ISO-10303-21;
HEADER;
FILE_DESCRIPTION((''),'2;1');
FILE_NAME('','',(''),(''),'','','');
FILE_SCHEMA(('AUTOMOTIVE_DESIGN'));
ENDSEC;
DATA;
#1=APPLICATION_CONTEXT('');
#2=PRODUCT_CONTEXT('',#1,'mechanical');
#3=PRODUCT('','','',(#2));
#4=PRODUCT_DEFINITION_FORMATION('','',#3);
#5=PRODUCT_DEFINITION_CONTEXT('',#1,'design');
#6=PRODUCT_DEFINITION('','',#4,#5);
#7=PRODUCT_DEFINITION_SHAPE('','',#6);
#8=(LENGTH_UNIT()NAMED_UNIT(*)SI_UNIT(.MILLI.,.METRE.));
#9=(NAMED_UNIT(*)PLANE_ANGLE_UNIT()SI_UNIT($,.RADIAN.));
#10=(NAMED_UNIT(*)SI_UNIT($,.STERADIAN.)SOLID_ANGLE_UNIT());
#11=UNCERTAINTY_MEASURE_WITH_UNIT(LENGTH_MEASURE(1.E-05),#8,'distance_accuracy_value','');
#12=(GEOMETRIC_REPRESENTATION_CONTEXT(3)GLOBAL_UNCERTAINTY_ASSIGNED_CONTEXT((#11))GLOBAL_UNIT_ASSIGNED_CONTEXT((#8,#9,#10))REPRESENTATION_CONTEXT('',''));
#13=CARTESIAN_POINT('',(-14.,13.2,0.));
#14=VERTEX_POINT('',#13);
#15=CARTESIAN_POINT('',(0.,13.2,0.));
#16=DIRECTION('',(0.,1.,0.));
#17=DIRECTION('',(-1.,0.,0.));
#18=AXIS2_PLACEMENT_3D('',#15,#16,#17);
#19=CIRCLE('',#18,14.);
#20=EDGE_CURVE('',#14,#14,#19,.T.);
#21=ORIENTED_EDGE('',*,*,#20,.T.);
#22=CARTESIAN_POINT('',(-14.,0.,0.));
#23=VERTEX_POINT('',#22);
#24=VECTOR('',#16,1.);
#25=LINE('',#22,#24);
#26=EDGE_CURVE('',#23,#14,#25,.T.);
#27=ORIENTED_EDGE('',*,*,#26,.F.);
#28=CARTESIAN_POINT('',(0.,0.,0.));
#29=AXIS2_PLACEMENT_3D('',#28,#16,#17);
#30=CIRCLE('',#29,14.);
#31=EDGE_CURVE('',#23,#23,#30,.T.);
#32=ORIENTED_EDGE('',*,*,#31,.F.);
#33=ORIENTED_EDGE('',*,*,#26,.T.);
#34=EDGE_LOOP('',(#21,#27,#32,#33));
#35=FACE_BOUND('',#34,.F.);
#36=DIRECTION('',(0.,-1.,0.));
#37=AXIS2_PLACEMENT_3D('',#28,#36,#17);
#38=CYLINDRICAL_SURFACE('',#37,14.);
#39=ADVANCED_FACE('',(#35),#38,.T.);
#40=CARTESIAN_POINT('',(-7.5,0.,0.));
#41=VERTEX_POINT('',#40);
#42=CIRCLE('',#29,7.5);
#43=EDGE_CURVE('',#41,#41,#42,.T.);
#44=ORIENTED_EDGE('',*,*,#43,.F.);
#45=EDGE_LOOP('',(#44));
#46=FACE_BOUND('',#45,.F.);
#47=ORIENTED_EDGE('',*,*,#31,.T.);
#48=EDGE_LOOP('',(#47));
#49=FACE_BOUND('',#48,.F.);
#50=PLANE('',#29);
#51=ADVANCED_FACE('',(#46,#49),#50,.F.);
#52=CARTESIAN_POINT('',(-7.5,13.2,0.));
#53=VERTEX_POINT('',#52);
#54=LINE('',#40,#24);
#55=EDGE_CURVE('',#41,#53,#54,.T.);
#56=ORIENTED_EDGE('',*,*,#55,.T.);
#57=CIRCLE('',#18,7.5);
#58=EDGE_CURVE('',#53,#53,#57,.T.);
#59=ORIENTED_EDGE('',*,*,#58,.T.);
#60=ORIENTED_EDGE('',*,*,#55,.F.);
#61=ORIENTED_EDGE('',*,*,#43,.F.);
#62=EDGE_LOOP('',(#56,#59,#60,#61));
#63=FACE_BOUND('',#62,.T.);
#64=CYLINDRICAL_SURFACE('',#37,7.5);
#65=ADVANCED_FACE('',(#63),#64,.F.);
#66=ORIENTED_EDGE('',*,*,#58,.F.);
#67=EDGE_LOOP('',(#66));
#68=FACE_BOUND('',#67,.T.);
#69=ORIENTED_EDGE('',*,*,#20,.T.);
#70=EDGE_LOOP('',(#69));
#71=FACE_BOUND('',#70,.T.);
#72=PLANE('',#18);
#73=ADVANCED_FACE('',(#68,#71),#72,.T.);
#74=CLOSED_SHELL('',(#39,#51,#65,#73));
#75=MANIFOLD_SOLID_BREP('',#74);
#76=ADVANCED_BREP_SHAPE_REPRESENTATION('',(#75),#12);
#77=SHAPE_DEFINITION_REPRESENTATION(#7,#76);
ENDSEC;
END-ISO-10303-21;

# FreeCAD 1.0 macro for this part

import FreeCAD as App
import Part
import Sketcher
from FreeCAD import Vector

doc = App.newDocument("Part")
body = doc.addObject("PartDesign::Body", "Body")

sketch1 = body.newObject("Sketcher::SketchObject", "Sketch")
sketch1.AttachmentSupport = (doc.getObject("XZ_Plane"), [""])
sketch1.MapMode = "FlatFace"
sketch1.addGeometry([
    Part.Circle(Vector(0, 0, 0), Vector(0, 0, 1), 14),
    Part.Circle(Vector(0, 0, 0), Vector(0, 0, 1), 8),
], False)
sketch1.addConstraint([
    Sketcher.Constraint("Coincident", 0, 3, -1, 1),
    Sketcher.Constraint("Coincident", 1, 3, -1, 1),
    Sketcher.Constraint("Diameter", 0, 28.0),
    Sketcher.Constraint("Diameter", 1, 15.0),
])
pad1 = body.newObject("PartDesign::Pad", "Pad")
pad1.Profile = sketch1
pad1.Length = 13.2
pad1.Reversed = True

doc.recompute()
